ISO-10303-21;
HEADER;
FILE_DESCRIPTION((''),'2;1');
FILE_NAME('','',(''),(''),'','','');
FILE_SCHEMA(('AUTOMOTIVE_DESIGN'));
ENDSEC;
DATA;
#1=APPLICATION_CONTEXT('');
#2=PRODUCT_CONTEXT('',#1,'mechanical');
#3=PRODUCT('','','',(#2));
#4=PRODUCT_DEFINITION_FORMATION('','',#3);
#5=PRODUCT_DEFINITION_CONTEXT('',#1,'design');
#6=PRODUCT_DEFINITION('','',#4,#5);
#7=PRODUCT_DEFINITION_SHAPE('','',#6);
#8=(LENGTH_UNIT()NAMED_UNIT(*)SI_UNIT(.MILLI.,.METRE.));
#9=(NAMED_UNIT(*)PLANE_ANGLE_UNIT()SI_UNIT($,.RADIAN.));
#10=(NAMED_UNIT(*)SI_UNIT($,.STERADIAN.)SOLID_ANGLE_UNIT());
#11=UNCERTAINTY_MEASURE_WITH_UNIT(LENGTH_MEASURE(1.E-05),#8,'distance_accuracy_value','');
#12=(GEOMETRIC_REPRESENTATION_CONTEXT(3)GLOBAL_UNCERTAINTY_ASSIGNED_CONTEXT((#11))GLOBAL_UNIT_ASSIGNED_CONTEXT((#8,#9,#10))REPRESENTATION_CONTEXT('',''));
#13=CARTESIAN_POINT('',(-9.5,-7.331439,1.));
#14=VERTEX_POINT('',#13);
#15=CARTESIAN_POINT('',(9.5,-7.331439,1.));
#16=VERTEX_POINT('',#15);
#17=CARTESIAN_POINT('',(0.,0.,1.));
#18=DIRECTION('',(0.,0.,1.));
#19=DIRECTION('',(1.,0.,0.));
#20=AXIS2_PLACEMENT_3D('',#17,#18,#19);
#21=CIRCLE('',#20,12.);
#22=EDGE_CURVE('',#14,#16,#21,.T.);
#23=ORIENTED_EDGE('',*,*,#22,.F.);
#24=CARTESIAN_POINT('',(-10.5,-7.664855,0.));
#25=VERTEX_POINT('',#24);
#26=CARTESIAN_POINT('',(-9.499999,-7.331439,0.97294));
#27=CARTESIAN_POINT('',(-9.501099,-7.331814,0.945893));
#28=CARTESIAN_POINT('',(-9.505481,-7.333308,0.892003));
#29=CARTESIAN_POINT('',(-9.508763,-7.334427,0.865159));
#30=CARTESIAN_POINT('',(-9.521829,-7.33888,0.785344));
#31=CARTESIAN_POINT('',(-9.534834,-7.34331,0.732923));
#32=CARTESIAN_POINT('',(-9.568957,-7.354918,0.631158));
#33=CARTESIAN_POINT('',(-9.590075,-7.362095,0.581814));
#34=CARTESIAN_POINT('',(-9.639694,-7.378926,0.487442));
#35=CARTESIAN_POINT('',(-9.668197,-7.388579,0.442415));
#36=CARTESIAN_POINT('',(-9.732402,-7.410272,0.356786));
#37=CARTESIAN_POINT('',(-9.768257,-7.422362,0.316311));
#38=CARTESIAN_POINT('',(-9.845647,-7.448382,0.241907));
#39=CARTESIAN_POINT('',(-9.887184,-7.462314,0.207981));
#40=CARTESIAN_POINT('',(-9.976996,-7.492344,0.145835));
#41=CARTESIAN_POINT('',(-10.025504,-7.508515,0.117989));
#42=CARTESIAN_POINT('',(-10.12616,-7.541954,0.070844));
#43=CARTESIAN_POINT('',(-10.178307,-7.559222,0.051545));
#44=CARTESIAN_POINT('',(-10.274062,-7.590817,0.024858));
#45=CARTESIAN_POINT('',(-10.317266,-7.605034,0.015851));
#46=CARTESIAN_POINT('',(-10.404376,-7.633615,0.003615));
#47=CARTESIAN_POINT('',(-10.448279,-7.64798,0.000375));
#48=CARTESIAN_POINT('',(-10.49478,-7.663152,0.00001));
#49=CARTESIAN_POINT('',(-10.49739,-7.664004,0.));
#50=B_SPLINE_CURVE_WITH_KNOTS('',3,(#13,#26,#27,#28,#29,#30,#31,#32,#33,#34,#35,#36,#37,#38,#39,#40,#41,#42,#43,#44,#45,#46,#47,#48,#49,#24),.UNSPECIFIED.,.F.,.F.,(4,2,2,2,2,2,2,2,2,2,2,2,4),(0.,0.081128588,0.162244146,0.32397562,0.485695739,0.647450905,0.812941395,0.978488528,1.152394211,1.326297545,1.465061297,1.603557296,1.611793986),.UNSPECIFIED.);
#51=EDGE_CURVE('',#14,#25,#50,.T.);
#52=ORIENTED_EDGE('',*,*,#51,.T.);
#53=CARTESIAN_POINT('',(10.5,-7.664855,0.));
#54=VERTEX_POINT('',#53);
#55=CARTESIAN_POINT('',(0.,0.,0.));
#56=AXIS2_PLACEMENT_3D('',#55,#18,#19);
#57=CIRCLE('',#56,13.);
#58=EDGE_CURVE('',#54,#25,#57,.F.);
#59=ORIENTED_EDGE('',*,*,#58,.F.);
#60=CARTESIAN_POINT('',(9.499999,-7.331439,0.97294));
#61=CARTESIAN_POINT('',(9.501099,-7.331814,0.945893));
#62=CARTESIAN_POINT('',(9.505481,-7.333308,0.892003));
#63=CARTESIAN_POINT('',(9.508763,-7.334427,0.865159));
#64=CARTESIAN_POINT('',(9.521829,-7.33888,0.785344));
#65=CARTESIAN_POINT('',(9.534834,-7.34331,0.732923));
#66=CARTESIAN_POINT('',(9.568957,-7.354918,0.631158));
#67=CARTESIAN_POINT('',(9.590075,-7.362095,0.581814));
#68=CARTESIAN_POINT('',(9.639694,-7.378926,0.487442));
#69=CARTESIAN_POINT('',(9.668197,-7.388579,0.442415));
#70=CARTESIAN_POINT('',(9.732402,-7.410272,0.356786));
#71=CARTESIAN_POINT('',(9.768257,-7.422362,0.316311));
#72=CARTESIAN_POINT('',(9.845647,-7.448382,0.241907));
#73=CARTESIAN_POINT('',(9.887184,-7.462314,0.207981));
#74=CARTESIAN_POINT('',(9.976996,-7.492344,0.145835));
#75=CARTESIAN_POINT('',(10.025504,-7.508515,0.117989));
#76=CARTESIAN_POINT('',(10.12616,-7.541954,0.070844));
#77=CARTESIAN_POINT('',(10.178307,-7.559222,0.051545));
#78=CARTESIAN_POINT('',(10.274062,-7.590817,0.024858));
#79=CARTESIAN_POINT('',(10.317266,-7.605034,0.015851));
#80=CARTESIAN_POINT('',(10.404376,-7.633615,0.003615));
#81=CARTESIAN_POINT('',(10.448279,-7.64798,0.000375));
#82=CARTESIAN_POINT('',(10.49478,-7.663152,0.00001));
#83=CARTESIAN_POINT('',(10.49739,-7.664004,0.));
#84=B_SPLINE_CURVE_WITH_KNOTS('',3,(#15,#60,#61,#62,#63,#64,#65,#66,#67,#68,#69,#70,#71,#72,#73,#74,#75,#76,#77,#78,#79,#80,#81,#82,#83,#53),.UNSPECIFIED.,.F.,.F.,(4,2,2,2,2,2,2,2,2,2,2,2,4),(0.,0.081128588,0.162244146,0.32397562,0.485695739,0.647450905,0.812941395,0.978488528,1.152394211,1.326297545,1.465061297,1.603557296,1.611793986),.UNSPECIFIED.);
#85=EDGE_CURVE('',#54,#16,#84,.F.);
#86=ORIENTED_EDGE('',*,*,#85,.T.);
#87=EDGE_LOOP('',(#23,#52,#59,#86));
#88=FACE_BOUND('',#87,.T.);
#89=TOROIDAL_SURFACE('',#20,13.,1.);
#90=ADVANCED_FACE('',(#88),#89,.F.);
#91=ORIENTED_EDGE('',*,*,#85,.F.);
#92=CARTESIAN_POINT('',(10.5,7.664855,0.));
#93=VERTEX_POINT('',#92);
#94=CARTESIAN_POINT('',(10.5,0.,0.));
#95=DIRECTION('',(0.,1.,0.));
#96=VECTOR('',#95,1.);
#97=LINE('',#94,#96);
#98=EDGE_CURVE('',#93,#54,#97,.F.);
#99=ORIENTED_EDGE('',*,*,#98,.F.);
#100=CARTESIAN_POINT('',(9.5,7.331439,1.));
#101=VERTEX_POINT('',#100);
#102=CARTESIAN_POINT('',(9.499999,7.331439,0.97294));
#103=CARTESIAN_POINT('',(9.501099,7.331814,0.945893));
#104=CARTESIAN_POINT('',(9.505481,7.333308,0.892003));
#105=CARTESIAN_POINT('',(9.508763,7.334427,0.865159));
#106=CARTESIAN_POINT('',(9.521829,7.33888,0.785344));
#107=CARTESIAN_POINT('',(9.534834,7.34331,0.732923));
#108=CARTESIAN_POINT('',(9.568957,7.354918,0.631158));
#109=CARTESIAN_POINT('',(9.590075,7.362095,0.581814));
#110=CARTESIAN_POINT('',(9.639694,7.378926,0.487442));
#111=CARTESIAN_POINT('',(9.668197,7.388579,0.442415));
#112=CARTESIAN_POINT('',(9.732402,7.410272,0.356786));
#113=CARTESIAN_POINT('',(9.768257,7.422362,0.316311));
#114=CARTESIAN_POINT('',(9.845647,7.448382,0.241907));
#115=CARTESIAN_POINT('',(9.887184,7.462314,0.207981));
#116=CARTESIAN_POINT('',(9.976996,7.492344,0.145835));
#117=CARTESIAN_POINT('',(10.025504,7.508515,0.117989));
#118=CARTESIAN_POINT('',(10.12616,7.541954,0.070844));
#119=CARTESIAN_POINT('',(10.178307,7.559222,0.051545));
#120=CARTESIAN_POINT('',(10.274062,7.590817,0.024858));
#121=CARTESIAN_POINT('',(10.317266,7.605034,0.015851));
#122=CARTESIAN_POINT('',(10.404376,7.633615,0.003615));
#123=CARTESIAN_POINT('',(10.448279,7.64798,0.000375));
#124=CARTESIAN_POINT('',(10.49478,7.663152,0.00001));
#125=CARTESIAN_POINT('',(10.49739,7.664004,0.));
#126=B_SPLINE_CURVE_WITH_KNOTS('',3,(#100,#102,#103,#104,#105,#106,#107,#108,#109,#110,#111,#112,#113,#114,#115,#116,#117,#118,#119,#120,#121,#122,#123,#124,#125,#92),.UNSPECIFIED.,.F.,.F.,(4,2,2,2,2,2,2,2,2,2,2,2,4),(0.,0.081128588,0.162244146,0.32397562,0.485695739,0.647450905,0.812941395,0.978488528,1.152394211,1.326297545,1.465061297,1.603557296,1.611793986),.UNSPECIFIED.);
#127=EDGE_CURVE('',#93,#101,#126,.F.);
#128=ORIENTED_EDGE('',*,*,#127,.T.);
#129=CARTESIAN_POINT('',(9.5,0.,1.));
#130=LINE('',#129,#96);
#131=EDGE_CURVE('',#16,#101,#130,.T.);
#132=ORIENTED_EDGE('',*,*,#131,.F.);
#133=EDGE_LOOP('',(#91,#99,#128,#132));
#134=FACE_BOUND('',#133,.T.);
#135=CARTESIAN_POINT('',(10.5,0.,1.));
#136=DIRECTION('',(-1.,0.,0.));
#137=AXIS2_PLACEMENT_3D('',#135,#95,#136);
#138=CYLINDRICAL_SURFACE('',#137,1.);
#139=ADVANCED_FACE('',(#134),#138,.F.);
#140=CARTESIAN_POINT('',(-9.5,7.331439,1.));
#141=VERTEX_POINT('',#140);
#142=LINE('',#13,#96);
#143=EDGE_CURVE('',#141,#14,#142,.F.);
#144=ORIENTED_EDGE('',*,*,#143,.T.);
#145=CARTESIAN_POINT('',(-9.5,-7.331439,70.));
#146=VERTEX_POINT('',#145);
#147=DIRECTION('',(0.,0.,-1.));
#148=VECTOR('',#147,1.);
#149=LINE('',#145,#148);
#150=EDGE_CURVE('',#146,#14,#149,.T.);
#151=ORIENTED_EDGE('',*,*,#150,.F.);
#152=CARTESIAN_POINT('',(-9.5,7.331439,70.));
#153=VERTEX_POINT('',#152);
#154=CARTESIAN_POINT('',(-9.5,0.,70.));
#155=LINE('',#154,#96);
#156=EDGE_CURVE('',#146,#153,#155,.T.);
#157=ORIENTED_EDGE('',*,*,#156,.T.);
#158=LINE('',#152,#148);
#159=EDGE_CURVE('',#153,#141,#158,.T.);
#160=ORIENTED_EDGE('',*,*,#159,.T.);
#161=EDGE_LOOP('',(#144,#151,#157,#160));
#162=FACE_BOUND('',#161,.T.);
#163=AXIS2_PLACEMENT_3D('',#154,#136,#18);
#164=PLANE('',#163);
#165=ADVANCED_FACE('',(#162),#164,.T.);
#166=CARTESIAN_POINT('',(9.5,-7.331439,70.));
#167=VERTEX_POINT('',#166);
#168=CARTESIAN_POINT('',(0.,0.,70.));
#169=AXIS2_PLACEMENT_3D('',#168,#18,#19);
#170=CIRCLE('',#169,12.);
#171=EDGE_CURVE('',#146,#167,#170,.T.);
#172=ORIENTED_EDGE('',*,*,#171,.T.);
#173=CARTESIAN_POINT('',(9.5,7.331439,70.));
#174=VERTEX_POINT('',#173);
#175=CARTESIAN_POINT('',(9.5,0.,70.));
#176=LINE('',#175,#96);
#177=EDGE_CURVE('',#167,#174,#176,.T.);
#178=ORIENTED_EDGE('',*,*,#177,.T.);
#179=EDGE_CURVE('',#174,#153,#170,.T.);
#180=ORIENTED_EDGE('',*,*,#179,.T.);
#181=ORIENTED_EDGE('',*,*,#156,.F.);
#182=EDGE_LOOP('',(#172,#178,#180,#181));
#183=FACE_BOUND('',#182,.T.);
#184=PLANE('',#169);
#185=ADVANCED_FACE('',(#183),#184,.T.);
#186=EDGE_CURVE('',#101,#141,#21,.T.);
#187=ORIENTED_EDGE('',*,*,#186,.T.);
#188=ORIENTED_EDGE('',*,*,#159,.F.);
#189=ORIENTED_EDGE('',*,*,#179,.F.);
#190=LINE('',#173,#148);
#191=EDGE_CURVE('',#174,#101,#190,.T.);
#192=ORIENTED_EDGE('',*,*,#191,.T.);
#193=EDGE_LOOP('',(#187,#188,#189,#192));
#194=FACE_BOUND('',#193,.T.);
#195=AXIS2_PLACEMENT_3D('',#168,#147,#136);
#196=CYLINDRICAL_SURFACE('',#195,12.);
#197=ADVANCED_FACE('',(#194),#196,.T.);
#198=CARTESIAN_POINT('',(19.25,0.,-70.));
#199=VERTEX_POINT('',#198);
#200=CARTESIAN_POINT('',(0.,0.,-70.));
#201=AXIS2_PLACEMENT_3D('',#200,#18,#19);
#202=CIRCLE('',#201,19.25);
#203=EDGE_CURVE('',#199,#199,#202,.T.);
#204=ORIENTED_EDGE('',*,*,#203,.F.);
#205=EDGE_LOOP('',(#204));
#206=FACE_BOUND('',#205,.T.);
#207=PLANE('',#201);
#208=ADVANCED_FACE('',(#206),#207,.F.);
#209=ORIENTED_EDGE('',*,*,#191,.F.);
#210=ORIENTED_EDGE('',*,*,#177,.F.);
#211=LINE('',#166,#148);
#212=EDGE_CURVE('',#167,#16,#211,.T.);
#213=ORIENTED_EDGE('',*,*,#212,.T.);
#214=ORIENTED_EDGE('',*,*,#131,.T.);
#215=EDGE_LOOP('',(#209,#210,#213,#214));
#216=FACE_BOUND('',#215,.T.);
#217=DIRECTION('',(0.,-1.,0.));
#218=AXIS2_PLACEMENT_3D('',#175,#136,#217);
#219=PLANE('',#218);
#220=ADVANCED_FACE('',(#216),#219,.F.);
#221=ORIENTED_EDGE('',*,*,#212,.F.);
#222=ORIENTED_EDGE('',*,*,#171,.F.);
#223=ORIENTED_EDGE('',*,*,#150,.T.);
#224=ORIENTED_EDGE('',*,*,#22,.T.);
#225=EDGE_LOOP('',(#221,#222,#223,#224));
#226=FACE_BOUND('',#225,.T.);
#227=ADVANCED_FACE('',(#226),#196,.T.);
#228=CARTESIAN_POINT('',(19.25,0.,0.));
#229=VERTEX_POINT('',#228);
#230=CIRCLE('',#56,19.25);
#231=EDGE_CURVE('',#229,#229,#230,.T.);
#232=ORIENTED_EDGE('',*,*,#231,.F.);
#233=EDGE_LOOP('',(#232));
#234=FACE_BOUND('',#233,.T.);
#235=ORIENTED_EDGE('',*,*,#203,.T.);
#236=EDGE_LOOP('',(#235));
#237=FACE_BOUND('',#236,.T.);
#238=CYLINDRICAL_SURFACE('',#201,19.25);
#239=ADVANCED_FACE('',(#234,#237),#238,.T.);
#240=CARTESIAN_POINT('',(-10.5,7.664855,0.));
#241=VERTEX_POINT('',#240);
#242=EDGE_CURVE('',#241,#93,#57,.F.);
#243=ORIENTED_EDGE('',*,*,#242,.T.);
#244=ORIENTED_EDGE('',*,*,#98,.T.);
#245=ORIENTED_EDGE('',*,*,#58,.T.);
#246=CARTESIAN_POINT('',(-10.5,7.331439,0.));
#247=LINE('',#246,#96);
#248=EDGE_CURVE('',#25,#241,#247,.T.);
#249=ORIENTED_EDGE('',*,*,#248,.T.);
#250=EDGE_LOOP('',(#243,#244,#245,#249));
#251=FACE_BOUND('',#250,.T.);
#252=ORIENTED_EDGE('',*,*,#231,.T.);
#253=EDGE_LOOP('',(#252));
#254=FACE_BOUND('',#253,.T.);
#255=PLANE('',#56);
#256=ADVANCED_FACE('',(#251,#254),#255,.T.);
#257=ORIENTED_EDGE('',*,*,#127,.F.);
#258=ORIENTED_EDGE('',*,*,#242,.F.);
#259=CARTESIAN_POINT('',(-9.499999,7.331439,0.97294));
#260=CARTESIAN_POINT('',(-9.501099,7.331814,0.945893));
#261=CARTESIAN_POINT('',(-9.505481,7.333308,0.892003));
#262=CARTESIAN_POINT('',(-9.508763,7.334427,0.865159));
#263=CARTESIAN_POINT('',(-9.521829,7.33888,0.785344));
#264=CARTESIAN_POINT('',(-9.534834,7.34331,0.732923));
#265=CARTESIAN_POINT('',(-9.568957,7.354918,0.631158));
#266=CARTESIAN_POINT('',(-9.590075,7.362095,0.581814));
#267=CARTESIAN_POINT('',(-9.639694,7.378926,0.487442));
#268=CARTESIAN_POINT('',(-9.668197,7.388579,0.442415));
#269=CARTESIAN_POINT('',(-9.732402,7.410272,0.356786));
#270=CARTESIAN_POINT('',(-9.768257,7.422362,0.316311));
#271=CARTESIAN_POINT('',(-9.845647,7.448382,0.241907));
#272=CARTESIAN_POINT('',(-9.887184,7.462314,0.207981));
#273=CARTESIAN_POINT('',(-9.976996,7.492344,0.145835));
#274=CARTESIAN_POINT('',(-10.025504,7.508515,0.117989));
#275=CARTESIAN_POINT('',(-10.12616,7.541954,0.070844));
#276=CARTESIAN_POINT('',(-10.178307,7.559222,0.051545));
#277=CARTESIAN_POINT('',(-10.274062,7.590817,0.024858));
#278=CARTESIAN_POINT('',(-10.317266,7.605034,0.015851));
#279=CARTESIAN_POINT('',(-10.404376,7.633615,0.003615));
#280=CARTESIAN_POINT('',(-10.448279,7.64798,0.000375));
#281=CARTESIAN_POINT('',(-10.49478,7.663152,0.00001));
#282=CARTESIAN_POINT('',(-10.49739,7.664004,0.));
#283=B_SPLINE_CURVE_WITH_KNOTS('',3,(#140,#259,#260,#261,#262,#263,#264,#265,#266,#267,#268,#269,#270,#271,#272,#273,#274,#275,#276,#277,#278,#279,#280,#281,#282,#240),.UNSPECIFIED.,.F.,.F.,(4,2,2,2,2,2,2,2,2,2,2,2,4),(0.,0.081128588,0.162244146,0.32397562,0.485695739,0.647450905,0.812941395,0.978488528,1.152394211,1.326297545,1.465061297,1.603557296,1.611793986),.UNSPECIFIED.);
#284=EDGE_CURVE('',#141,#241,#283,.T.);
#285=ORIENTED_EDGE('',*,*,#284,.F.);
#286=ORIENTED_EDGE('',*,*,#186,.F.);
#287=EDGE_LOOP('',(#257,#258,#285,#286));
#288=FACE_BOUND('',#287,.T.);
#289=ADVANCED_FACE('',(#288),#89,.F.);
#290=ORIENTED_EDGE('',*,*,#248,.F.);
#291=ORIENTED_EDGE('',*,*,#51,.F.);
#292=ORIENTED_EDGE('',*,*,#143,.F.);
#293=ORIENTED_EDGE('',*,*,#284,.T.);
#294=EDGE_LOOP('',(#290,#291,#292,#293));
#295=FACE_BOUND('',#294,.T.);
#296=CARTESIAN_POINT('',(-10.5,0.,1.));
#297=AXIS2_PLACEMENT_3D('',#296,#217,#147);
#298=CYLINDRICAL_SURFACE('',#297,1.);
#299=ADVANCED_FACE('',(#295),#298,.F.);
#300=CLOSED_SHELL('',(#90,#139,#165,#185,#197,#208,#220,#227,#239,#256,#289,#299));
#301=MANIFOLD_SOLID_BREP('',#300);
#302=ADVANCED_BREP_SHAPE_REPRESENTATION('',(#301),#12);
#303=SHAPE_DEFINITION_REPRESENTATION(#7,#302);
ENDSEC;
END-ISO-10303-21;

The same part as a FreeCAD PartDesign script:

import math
import FreeCAD as App
import Part
import Sketcher


def edges_at(feature, points):
    """Names of the edges that pass closest to the given points."""
    edges = feature.Shape.Edges
    near = lambda p: min(range(len(edges)), key=lambda i: edges[i].distToShape(Part.Vertex(*p))[0])
    return sorted({f"Edge{near(p) + 1}" for p in points})

doc = App.newDocument("Part")
params = doc.addObject("Spreadsheet::Sheet", "Params")
for row, (alias, value) in enumerate([
    ("sketch1_diameter", "38.5 mm"),
    ("pad1_length", "70 mm"),
    ("sketch2_radius", "12 mm"),
    ("pad2_length", "70 mm"),
    ("fillet_radius", "1 mm"),
], start=1):
    params.set(f"A{row}", alias)
    params.set(f"B{row}", "=" + value)
    params.setAlias(f"B{row}", alias)

body = doc.addObject("PartDesign::Body", "Body")

# Sketch on XY plane
sketch1 = body.newObject("Sketcher::SketchObject", "Sketch")
sketch1.AttachmentSupport = (doc.getObject("XY_Plane"), [""])
sketch1.MapMode = "FlatFace"
sketch1.addGeometry(Part.Circle(App.Vector(0, 0, 0), App.Vector(0, 0, 1), 19), False)
sketch1.addConstraint([
    Sketcher.Constraint("Coincident", 0, 3, -1, 1),
    Sketcher.Constraint("Diameter", 0, 38.5),
])
sketch1.setExpression("Constraints[1]", "Params.sketch1_diameter")
pad1 = body.newObject("PartDesign::Pad", "Pad")
pad1.Profile = sketch1
pad1.setExpression("Length", "Params.pad1_length")
pad1.Reversed = True

# Sketch on XY plane
sketch2 = body.newObject("Sketcher::SketchObject", "Sketch001")
sketch2.AttachmentSupport = (doc.getObject("XY_Plane"), [""])
sketch2.MapMode = "FlatFace"
sketch2.addGeometry([
    Part.ArcOfCircle(Part.Circle(App.Vector(0, 0, 0), App.Vector(0, 0, 1), 12), math.radians(38), math.radians(142)),
    Part.LineSegment(App.Vector(-10, 7, 0), App.Vector(-10, -7, 0)),
    Part.ArcOfCircle(Part.Circle(App.Vector(0, 0, 0), App.Vector(0, 0, 1), 12), math.radians(-142), math.radians(-38)),
    Part.LineSegment(App.Vector(10, -7, 0), App.Vector(10, 7, 0)),
], False)
sketch2.addConstraint([
    Sketcher.Constraint("Coincident", 0, 2, 1, 1),
    Sketcher.Constraint("Coincident", 1, 2, 2, 1),
    Sketcher.Constraint("Coincident", 2, 2, 3, 1),
    Sketcher.Constraint("Coincident", 3, 2, 0, 1),
    Sketcher.Constraint("Vertical", 1),
    Sketcher.Constraint("Vertical", 3),
    Sketcher.Constraint("Coincident", 0, 3, -1, 1),
    Sketcher.Constraint("Coincident", 2, 3, -1, 1),
    Sketcher.Constraint("Equal", 0, 2),
    Sketcher.Constraint("Horizontal", 1, 2, 2, 2),
    Sketcher.Constraint("Radius", 0, 12.0),
    Sketcher.Constraint("DistanceX", 1, 2, 2, 2, 19.0),
])
sketch2.setExpression("Constraints[10]", "Params.sketch2_radius")
pad2 = body.newObject("PartDesign::Pad", "Pad001")
pad2.Profile = sketch2
pad2.setExpression("Length", "Params.pad2_length")
doc.recompute()

fillet = body.newObject("PartDesign::Fillet", "Fillet")
fillet.Base = (pad2, edges_at(pad2, [
    (0, 12, 0),
    (0, -12, 0),
    (9.5, 0, 0),
    (-9.5, 0, 0),
]))
fillet.setExpression("Radius", "Params.fillet_radius")

doc.recompute()
